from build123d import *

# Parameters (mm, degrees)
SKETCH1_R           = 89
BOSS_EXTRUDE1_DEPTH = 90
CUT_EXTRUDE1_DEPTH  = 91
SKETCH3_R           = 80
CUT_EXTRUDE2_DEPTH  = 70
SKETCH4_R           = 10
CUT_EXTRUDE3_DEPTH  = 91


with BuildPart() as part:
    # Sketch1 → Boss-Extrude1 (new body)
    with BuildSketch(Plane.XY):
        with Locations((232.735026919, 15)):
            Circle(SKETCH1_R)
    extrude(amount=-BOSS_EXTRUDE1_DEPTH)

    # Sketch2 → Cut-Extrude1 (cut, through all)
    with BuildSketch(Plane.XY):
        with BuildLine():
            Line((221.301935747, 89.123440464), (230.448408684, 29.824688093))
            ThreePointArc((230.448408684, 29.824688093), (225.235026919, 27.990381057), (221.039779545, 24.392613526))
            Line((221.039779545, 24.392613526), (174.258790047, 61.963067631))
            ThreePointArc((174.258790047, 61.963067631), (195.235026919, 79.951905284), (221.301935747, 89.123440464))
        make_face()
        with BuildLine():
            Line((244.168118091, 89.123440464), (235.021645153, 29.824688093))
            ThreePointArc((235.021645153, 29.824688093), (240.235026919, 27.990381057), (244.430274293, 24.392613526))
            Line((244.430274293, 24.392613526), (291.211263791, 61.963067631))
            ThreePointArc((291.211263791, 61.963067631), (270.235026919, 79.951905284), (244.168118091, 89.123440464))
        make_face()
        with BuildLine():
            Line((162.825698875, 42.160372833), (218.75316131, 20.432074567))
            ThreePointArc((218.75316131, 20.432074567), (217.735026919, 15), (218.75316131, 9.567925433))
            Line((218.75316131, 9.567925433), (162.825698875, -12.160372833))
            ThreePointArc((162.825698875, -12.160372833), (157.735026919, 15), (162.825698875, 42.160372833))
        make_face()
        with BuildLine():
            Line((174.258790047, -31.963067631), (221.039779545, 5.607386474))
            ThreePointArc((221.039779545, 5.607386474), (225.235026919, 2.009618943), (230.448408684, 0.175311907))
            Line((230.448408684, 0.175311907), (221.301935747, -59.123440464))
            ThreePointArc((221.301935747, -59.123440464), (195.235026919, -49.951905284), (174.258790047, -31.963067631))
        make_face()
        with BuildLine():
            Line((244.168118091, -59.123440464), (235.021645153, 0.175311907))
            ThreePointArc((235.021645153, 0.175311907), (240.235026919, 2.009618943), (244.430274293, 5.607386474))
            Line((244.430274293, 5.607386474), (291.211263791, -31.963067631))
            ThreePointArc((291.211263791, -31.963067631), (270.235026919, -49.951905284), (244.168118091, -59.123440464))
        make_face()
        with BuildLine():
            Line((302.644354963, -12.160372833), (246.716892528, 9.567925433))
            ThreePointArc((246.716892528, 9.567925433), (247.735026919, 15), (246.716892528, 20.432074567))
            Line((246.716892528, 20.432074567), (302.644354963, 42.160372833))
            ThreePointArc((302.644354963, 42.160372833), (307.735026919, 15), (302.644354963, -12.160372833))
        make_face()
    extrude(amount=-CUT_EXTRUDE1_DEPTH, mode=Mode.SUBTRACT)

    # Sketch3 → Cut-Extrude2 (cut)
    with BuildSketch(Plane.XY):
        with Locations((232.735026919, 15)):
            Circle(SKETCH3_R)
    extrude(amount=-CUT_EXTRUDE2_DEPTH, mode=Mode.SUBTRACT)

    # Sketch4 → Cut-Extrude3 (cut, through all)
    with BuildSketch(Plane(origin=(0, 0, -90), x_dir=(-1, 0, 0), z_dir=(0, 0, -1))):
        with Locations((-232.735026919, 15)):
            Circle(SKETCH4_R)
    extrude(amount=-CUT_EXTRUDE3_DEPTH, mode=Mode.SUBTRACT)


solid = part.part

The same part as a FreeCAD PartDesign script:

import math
import FreeCAD as App
import Part
import Sketcher

doc = App.newDocument("Part")
body = doc.addObject("PartDesign::Body", "Body")

# Sketch on XY plane
sketch1 = body.newObject("Sketcher::SketchObject", "Sketch")
sketch1.AttachmentSupport = (doc.getObject("XY_Plane"), [""])
sketch1.MapMode = "FlatFace"
sketch1.addGeometry(Part.Circle(App.Vector(233, 15, 0), App.Vector(0, 0, 1), 89), False)
sketch1.addConstraint(Sketcher.Constraint("Diameter", 0, 178.0))
sketch1.addConstraint(Sketcher.Constraint("DistanceY", -1, 1, 0, 3, 15.0))
sketch1.addConstraint(Sketcher.Constraint("DistanceX", -1, 1, 0, 3, 232.735027))
pad1 = body.newObject("PartDesign::Pad", "Pad")
pad1.Profile = sketch1
pad1.Length = 90
pad1.Reversed = True

# Sketch on XY plane
sketch2 = body.newObject("Sketcher::SketchObject", "Sketch001")
sketch2.AttachmentSupport = (doc.getObject("XY_Plane"), [""])
sketch2.MapMode = "FlatFace"
sketch2.addGeometry(Part.LineSegment(App.Vector(230, 30, 0), App.Vector(221, 89, 0)), False)
sketch2.addGeometry(Part.ArcOfCircle(Part.Circle(App.Vector(233, 15, 0), App.Vector(0, 0, 1), 75), math.radians(99), math.radians(141)), False)
sketch2.addGeometry(Part.LineSegment(App.Vector(174, 62, 0), App.Vector(221, 24, 0)), False)
sketch2.addGeometry(Part.ArcOfCircle(Part.Circle(App.Vector(233, 15, 0), App.Vector(0, 0, 1), 15), math.radians(99), math.radians(141)), False)
sketch2.addGeometry(Part.LineSegment(App.Vector(244, 89, 0), App.Vector(235, 30, 0)), False)
sketch2.addGeometry(Part.ArcOfCircle(Part.Circle(App.Vector(233, 15, 0), App.Vector(0, 0, 1), 15), math.radians(39), math.radians(81)), False)
sketch2.addGeometry(Part.LineSegment(App.Vector(244, 24, 0), App.Vector(291, 62, 0)), False)
sketch2.addGeometry(Part.ArcOfCircle(Part.Circle(App.Vector(233, 15, 0), App.Vector(0, 0, 1), 75), math.radians(39), math.radians(81)), False)
sketch2.addGeometry(Part.LineSegment(App.Vector(219, 20, 0), App.Vector(163, 42, 0)), False)
sketch2.addGeometry(Part.ArcOfCircle(Part.Circle(App.Vector(233, 15, 0), App.Vector(0, 0, 1), 75), math.radians(159), math.radians(201)), False)
sketch2.addGeometry(Part.LineSegment(App.Vector(163, -12, 0), App.Vector(219, 10, 0)), False)
sketch2.addGeometry(Part.ArcOfCircle(Part.Circle(App.Vector(233, 15, 0), App.Vector(0, 0, 1), 15), math.radians(159), math.radians(201)), False)
sketch2.addGeometry(Part.LineSegment(App.Vector(221, 6, 0), App.Vector(174, -32, 0)), False)
sketch2.addGeometry(Part.ArcOfCircle(Part.Circle(App.Vector(233, 15, 0), App.Vector(0, 0, 1), 75), math.radians(-141), math.radians(-99)), False)
sketch2.addGeometry(Part.LineSegment(App.Vector(221, -59, 0), App.Vector(230, 0, 0)), False)
sketch2.addGeometry(Part.ArcOfCircle(Part.Circle(App.Vector(233, 15, 0), App.Vector(0, 0, 1), 15), math.radians(-141), math.radians(-99)), False)
sketch2.addGeometry(Part.LineSegment(App.Vector(235, 0, 0), App.Vector(244, -59, 0)), False)
sketch2.addGeometry(Part.ArcOfCircle(Part.Circle(App.Vector(233, 15, 0), App.Vector(0, 0, 1), 75), math.radians(-81), math.radians(-39)), False)
sketch2.addGeometry(Part.LineSegment(App.Vector(291, -32, 0), App.Vector(244, 6, 0)), False)
sketch2.addGeometry(Part.ArcOfCircle(Part.Circle(App.Vector(233, 15, 0), App.Vector(0, 0, 1), 15), math.radians(-81), math.radians(-39)), False)
sketch2.addGeometry(Part.LineSegment(App.Vector(247, 10, 0), App.Vector(303, -12, 0)), False)
sketch2.addGeometry(Part.ArcOfCircle(Part.Circle(App.Vector(233, 15, 0), App.Vector(0, 0, 1), 75), math.radians(-21), math.radians(21)), False)
sketch2.addGeometry(Part.LineSegment(App.Vector(303, 42, 0), App.Vector(247, 20, 0)), False)
sketch2.addGeometry(Part.ArcOfCircle(Part.Circle(App.Vector(233, 15, 0), App.Vector(0, 0, 1), 15), math.radians(-21), math.radians(21)), False)
sketch2.addConstraint(Sketcher.Constraint("Coincident", 0, 2, 1, 1))
sketch2.addConstraint(Sketcher.Constraint("Coincident", 1, 2, 2, 1))
sketch2.addConstraint(Sketcher.Constraint("Coincident", 2, 2, 3, 2))
sketch2.addConstraint(Sketcher.Constraint("Coincident", 3, 1, 0, 1))
sketch2.addConstraint(Sketcher.Constraint("Coincident", 4, 2, 5, 2))
sketch2.addConstraint(Sketcher.Constraint("Coincident", 5, 1, 6, 1))
sketch2.addConstraint(Sketcher.Constraint("Coincident", 6, 2, 7, 1))
sketch2.addConstraint(Sketcher.Constraint("Coincident", 7, 2, 4, 1))
sketch2.addConstraint(Sketcher.Constraint("Coincident", 8, 2, 9, 1))
sketch2.addConstraint(Sketcher.Constraint("Coincident", 9, 2, 10, 1))
sketch2.addConstraint(Sketcher.Constraint("Coincident", 10, 2, 11, 2))
sketch2.addConstraint(Sketcher.Constraint("Coincident", 11, 1, 8, 1))
sketch2.addConstraint(Sketcher.Constraint("Coincident", 12, 2, 13, 1))
sketch2.addConstraint(Sketcher.Constraint("Coincident", 13, 2, 14, 1))
sketch2.addConstraint(Sketcher.Constraint("Coincident", 14, 2, 15, 2))
sketch2.addConstraint(Sketcher.Constraint("Coincident", 15, 1, 12, 1))
sketch2.addConstraint(Sketcher.Constraint("Coincident", 16, 2, 17, 1))
sketch2.addConstraint(Sketcher.Constraint("Coincident", 17, 2, 18, 1))
sketch2.addConstraint(Sketcher.Constraint("Coincident", 18, 2, 19, 2))
sketch2.addConstraint(Sketcher.Constraint("Coincident", 19, 1, 16, 1))
sketch2.addConstraint(Sketcher.Constraint("Coincident", 20, 2, 21, 1))
sketch2.addConstraint(Sketcher.Constraint("Coincident", 21, 2, 22, 1))
sketch2.addConstraint(Sketcher.Constraint("Coincident", 22, 2, 23, 2))
sketch2.addConstraint(Sketcher.Constraint("Coincident", 23, 1, 20, 1))
sketch2.addConstraint(Sketcher.Constraint("Coincident", 3, 3, 1, 3))
sketch2.addConstraint(Sketcher.Constraint("Coincident", 5, 3, 1, 3))
sketch2.addConstraint(Sketcher.Constraint("Coincident", 7, 3, 1, 3))
sketch2.addConstraint(Sketcher.Constraint("Coincident", 9, 3, 1, 3))
sketch2.addConstraint(Sketcher.Constraint("Coincident", 11, 3, 1, 3))
sketch2.addConstraint(Sketcher.Constraint("Coincident", 13, 3, 1, 3))
sketch2.addConstraint(Sketcher.Constraint("Coincident", 15, 3, 1, 3))
sketch2.addConstraint(Sketcher.Constraint("Coincident", 17, 3, 1, 3))
sketch2.addConstraint(Sketcher.Constraint("Coincident", 19, 3, 1, 3))
sketch2.addConstraint(Sketcher.Constraint("Coincident", 21, 3, 1, 3))
sketch2.addConstraint(Sketcher.Constraint("Coincident", 23, 3, 1, 3))
sketch2.addConstraint(Sketcher.Constraint("Equal", 3, 5))
sketch2.addConstraint(Sketcher.Constraint("Equal", 1, 7))
sketch2.addConstraint(Sketcher.Constraint("Equal", 7, 9))
sketch2.addConstraint(Sketcher.Constraint("Equal", 5, 11))
sketch2.addConstraint(Sketcher.Constraint("Equal", 9, 13))
sketch2.addConstraint(Sketcher.Constraint("Equal", 11, 15))
sketch2.addConstraint(Sketcher.Constraint("Equal", 13, 17))
sketch2.addConstraint(Sketcher.Constraint("Equal", 15, 19))
sketch2.addConstraint(Sketcher.Constraint("Equal", 17, 21))
sketch2.addConstraint(Sketcher.Constraint("Equal", 19, 23))
sketch2.addConstraint(Sketcher.Constraint("Parallel", 6, 12))
sketch2.addConstraint(Sketcher.Constraint("Parallel", 4, 14))
sketch2.addConstraint(Sketcher.Constraint("Parallel", 0, 16))
sketch2.addConstraint(Sketcher.Constraint("Parallel", 2, 18))
sketch2.addConstraint(Sketcher.Constraint("Parallel", 8, 20))
sketch2.addConstraint(Sketcher.Constraint("Parallel", 10, 22))
sketch2.addConstraint(Sketcher.Constraint("Horizontal", 3, 1, 4, 2))
sketch2.addConstraint(Sketcher.Constraint("Horizontal", 2, 2, 5, 1))
sketch2.addConstraint(Sketcher.Constraint("Horizontal", 1, 2, 6, 2))
sketch2.addConstraint(Sketcher.Constraint("Horizontal", 0, 2, 7, 2))
sketch2.addConstraint(Sketcher.Constraint("Horizontal", 13, 2, 16, 2))
sketch2.addConstraint(Sketcher.Constraint("Horizontal", 12, 2, 17, 2))
sketch2.addConstraint(Sketcher.Constraint("Horizontal", 9, 2, 20, 2))
sketch2.addConstraint(Sketcher.Constraint("Horizontal", 8, 2, 21, 2))
sketch2.addConstraint(Sketcher.Constraint("Horizontal", 11, 1, 22, 2))
sketch2.addConstraint(Sketcher.Constraint("Vertical", 8, 2, 9, 2))
sketch2.addConstraint(Sketcher.Constraint("Vertical", 1, 2, 12, 2))
sketch2.addConstraint(Sketcher.Constraint("Vertical", 0, 2, 13, 2))
sketch2.addConstraint(Sketcher.Constraint("Radius", 1, 75.0))
sketch2.addConstraint(Sketcher.Constraint("Radius", 3, 15.0))
sketch2.addConstraint(Sketcher.Constraint("DistanceY", -1, 1, 1, 3, 15.0))
sketch2.addConstraint(Sketcher.Constraint("DistanceX", -1, 1, 8, 2, 162.825699))
sketch2.addConstraint(Sketcher.Constraint("DistanceY", -1, 1, 0, 2, 89.12344))
sketch2.addConstraint(Sketcher.Constraint("DistanceX", -1, 1, 1, 2, 174.25879))
sketch2.addConstraint(Sketcher.Constraint("DistanceX", -1, 1, 2, 2, 221.03978))
sketch2.addConstraint(Sketcher.Constraint("DistanceX", -1, 1, 3, 1, 230.448409))
sketch2.addConstraint(Sketcher.Constraint("DistanceY", -1, 1, 3, 1, 29.824688))
sketch2.addConstraint(Sketcher.Constraint("DistanceX", -1, 1, 10, 2, 218.753161))
pocket1 = body.newObject("PartDesign::Pocket", "Pocket")
pocket1.Profile = sketch2
pocket1.Type = "ThroughAll"

# Sketch on XY plane
sketch3 = body.newObject("Sketcher::SketchObject", "Sketch002")
sketch3.AttachmentSupport = (doc.getObject("XY_Plane"), [""])
sketch3.MapMode = "FlatFace"
sketch3.addGeometry(Part.Circle(App.Vector(233, 15, 0), App.Vector(0, 0, 1), 80), False)
sketch3.addConstraint(Sketcher.Constraint("Diameter", 0, 160.0))
sketch3.addConstraint(Sketcher.Constraint("DistanceY", -1, 1, 0, 3, 15.0))
sketch3.addConstraint(Sketcher.Constraint("DistanceX", -1, 1, 0, 3, 232.735027))
pocket2 = body.newObject("PartDesign::Pocket", "Pocket001")
pocket2.Profile = sketch3
pocket2.Length = 70

# Sketch on XY plane
sketch4 = body.newObject("Sketcher::SketchObject", "Sketch003")
sketch4.AttachmentSupport = (doc.getObject("XY_Plane"), [""])
sketch4.MapMode = "FlatFace"
sketch4.AttachmentOffset = App.Placement(App.Vector(0, 0, -90), App.Rotation())
sketch4.addGeometry(Part.Circle(App.Vector(233, 15, 0), App.Vector(0, 0, 1), 10), False)
sketch4.addConstraint(Sketcher.Constraint("Diameter", 0, 20.0))
sketch4.addConstraint(Sketcher.Constraint("DistanceY", -1, 1, 0, 3, 15.0))
sketch4.addConstraint(Sketcher.Constraint("DistanceX", -1, 1, 0, 3, 232.735027))
pocket3 = body.newObject("PartDesign::Pocket", "Pocket002")
pocket3.Profile = sketch4
pocket3.Type = "ThroughAll"
pocket3.Reversed = True

doc.recompute()
